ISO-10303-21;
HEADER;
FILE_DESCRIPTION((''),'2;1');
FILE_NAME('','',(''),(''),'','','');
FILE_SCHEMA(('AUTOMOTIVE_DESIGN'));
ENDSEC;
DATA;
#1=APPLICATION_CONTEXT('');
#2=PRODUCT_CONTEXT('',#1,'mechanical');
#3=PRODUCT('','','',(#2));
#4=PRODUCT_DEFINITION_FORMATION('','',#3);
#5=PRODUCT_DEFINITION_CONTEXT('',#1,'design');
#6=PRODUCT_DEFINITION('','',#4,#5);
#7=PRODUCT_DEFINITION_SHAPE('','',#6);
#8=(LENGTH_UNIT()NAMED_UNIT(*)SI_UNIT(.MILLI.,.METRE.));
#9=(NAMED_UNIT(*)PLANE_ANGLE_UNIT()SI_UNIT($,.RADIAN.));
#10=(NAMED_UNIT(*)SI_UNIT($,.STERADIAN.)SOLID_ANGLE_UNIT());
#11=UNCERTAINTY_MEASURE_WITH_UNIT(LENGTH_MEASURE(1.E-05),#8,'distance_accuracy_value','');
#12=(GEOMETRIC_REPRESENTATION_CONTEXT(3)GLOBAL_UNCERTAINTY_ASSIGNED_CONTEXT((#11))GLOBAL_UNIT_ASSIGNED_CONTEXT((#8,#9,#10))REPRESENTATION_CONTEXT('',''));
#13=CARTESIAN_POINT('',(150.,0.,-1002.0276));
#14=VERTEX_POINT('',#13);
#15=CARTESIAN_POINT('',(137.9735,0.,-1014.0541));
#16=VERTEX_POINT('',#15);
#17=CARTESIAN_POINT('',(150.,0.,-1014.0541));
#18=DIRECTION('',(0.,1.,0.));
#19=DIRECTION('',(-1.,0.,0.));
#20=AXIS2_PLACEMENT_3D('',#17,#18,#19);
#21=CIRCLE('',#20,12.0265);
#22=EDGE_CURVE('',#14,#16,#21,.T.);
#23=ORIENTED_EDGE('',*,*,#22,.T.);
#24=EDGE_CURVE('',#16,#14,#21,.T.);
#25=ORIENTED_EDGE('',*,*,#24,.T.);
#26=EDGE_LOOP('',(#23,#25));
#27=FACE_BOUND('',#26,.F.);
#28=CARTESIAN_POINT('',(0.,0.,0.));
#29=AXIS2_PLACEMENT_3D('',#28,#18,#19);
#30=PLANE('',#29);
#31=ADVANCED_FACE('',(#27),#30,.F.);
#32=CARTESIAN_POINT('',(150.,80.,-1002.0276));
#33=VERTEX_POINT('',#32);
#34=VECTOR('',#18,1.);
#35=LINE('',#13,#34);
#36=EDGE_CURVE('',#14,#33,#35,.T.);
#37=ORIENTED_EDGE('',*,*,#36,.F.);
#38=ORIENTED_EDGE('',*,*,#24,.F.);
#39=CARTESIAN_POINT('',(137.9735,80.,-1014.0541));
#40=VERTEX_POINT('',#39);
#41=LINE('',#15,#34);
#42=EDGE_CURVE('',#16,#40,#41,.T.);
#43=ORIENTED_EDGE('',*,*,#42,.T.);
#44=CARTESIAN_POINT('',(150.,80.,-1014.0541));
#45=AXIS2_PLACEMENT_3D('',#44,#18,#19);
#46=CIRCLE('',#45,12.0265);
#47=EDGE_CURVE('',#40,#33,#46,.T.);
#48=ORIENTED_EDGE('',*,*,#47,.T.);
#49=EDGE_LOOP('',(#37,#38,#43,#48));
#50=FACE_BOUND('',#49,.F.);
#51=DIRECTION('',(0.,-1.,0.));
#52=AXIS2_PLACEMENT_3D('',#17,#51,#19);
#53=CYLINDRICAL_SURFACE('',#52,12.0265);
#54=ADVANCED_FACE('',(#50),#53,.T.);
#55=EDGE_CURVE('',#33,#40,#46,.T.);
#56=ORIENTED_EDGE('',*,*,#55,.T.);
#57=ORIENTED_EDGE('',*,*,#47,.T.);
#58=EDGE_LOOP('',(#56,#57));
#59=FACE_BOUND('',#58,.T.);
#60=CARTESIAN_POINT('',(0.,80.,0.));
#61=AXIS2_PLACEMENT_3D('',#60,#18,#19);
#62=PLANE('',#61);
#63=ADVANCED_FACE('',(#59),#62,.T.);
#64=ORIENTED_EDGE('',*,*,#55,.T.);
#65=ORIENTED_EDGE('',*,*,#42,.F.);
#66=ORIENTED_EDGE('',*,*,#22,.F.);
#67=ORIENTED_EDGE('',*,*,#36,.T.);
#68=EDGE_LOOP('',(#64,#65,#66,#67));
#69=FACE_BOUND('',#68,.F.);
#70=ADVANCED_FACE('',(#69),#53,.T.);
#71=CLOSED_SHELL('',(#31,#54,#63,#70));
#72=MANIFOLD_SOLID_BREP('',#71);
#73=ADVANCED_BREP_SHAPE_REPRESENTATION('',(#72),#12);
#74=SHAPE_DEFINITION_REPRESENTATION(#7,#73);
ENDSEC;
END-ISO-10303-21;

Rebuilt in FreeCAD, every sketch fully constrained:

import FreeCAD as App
import Part
import Sketcher

doc = App.newDocument("Part")
body = doc.addObject("PartDesign::Body", "Body")

sketch1 = body.newObject("Sketcher::SketchObject", "Sketch")
sketch1.AttachmentSupport = (doc.getObject("XZ_Plane"), [""])
sketch1.MapMode = "FlatFace"
sketch1.addGeometry(Part.Circle(App.Vector(150, -1014, 0), App.Vector(0, 0, 1), 12), False)
sketch1.addConstraint(Sketcher.Constraint("DistanceX", -1, 1, 0, 3, 150.0))
sketch1.addConstraint(Sketcher.Constraint("Diameter", 0, 24.053))
sketch1.addConstraint(Sketcher.Constraint("DistanceY", 0, 3, -1, 1, 1014.054))
pad1 = body.newObject("PartDesign::Pad", "Pad")
pad1.Profile = sketch1
pad1.Length = 80
pad1.Reversed = True

doc.recompute()
